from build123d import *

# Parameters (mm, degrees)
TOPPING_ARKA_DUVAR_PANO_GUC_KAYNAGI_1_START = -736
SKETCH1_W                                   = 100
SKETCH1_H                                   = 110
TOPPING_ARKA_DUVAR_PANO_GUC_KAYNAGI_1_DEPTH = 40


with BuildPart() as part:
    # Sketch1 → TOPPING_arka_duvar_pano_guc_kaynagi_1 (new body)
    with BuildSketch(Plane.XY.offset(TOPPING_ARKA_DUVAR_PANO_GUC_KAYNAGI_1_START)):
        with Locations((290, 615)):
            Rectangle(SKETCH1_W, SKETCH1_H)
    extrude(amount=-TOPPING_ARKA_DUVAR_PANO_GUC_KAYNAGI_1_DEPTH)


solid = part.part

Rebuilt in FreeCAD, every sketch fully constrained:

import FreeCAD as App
import Part
import Sketcher

V = App.Vector
Q = App.Units.Quantity

doc = App.newDocument("Part")
body = doc.addObject("PartDesign::Body", "Body")

sketch1 = doc.addObject("Sketcher::SketchObject", "Sketch")
body.addObject(sketch1)
sketch1.AttachmentSupport = (doc.XY_Plane, [""])
sketch1.MapMode = "FlatFace"
sketch1.AttachmentOffset = App.Placement(V(0, 0, -736), App.Rotation())
sketch1.addGeometry(Part.LineSegment(V(240, 670, 0), V(240, 560, 0)), False)
sketch1.addGeometry(Part.LineSegment(V(240, 560, 0), V(340, 560, 0)), False)
sketch1.addGeometry(Part.LineSegment(V(340, 560, 0), V(340, 670, 0)), False)
sketch1.addGeometry(Part.LineSegment(V(340, 670, 0), V(240, 670, 0)), False)
sketch1.addConstraint(Sketcher.Constraint("Coincident", 0, 2, 1, 1))
sketch1.addConstraint(Sketcher.Constraint("Coincident", 1, 2, 2, 1))
sketch1.addConstraint(Sketcher.Constraint("Coincident", 2, 2, 3, 1))
sketch1.addConstraint(Sketcher.Constraint("Coincident", 3, 2, 0, 1))
sketch1.addConstraint(Sketcher.Constraint("Vertical", 0))
sketch1.addConstraint(Sketcher.Constraint("Horizontal", 1))
sketch1.addConstraint(Sketcher.Constraint("Vertical", 2))
sketch1.addConstraint(Sketcher.Constraint("Horizontal", 3))
sketch1.addConstraint(Sketcher.Constraint("DistanceX", 1, 1, 1, 2, Q("100 mm")))
sketch1.addConstraint(Sketcher.Constraint("DistanceY", 0, 2, 0, 1, Q("110 mm")))
sketch1.addConstraint(Sketcher.Constraint("DistanceX", -1, 1, 0, 2, Q("240 mm")))
sketch1.addConstraint(Sketcher.Constraint("DistanceY", -1, 1, 0, 2, Q("560 mm")))
pad1 = doc.addObject("PartDesign::Pad", "Pad")
body.addObject(pad1)
pad1.Profile = sketch1
pad1.Length = 40
pad1.Reversed = True

doc.recompute()
